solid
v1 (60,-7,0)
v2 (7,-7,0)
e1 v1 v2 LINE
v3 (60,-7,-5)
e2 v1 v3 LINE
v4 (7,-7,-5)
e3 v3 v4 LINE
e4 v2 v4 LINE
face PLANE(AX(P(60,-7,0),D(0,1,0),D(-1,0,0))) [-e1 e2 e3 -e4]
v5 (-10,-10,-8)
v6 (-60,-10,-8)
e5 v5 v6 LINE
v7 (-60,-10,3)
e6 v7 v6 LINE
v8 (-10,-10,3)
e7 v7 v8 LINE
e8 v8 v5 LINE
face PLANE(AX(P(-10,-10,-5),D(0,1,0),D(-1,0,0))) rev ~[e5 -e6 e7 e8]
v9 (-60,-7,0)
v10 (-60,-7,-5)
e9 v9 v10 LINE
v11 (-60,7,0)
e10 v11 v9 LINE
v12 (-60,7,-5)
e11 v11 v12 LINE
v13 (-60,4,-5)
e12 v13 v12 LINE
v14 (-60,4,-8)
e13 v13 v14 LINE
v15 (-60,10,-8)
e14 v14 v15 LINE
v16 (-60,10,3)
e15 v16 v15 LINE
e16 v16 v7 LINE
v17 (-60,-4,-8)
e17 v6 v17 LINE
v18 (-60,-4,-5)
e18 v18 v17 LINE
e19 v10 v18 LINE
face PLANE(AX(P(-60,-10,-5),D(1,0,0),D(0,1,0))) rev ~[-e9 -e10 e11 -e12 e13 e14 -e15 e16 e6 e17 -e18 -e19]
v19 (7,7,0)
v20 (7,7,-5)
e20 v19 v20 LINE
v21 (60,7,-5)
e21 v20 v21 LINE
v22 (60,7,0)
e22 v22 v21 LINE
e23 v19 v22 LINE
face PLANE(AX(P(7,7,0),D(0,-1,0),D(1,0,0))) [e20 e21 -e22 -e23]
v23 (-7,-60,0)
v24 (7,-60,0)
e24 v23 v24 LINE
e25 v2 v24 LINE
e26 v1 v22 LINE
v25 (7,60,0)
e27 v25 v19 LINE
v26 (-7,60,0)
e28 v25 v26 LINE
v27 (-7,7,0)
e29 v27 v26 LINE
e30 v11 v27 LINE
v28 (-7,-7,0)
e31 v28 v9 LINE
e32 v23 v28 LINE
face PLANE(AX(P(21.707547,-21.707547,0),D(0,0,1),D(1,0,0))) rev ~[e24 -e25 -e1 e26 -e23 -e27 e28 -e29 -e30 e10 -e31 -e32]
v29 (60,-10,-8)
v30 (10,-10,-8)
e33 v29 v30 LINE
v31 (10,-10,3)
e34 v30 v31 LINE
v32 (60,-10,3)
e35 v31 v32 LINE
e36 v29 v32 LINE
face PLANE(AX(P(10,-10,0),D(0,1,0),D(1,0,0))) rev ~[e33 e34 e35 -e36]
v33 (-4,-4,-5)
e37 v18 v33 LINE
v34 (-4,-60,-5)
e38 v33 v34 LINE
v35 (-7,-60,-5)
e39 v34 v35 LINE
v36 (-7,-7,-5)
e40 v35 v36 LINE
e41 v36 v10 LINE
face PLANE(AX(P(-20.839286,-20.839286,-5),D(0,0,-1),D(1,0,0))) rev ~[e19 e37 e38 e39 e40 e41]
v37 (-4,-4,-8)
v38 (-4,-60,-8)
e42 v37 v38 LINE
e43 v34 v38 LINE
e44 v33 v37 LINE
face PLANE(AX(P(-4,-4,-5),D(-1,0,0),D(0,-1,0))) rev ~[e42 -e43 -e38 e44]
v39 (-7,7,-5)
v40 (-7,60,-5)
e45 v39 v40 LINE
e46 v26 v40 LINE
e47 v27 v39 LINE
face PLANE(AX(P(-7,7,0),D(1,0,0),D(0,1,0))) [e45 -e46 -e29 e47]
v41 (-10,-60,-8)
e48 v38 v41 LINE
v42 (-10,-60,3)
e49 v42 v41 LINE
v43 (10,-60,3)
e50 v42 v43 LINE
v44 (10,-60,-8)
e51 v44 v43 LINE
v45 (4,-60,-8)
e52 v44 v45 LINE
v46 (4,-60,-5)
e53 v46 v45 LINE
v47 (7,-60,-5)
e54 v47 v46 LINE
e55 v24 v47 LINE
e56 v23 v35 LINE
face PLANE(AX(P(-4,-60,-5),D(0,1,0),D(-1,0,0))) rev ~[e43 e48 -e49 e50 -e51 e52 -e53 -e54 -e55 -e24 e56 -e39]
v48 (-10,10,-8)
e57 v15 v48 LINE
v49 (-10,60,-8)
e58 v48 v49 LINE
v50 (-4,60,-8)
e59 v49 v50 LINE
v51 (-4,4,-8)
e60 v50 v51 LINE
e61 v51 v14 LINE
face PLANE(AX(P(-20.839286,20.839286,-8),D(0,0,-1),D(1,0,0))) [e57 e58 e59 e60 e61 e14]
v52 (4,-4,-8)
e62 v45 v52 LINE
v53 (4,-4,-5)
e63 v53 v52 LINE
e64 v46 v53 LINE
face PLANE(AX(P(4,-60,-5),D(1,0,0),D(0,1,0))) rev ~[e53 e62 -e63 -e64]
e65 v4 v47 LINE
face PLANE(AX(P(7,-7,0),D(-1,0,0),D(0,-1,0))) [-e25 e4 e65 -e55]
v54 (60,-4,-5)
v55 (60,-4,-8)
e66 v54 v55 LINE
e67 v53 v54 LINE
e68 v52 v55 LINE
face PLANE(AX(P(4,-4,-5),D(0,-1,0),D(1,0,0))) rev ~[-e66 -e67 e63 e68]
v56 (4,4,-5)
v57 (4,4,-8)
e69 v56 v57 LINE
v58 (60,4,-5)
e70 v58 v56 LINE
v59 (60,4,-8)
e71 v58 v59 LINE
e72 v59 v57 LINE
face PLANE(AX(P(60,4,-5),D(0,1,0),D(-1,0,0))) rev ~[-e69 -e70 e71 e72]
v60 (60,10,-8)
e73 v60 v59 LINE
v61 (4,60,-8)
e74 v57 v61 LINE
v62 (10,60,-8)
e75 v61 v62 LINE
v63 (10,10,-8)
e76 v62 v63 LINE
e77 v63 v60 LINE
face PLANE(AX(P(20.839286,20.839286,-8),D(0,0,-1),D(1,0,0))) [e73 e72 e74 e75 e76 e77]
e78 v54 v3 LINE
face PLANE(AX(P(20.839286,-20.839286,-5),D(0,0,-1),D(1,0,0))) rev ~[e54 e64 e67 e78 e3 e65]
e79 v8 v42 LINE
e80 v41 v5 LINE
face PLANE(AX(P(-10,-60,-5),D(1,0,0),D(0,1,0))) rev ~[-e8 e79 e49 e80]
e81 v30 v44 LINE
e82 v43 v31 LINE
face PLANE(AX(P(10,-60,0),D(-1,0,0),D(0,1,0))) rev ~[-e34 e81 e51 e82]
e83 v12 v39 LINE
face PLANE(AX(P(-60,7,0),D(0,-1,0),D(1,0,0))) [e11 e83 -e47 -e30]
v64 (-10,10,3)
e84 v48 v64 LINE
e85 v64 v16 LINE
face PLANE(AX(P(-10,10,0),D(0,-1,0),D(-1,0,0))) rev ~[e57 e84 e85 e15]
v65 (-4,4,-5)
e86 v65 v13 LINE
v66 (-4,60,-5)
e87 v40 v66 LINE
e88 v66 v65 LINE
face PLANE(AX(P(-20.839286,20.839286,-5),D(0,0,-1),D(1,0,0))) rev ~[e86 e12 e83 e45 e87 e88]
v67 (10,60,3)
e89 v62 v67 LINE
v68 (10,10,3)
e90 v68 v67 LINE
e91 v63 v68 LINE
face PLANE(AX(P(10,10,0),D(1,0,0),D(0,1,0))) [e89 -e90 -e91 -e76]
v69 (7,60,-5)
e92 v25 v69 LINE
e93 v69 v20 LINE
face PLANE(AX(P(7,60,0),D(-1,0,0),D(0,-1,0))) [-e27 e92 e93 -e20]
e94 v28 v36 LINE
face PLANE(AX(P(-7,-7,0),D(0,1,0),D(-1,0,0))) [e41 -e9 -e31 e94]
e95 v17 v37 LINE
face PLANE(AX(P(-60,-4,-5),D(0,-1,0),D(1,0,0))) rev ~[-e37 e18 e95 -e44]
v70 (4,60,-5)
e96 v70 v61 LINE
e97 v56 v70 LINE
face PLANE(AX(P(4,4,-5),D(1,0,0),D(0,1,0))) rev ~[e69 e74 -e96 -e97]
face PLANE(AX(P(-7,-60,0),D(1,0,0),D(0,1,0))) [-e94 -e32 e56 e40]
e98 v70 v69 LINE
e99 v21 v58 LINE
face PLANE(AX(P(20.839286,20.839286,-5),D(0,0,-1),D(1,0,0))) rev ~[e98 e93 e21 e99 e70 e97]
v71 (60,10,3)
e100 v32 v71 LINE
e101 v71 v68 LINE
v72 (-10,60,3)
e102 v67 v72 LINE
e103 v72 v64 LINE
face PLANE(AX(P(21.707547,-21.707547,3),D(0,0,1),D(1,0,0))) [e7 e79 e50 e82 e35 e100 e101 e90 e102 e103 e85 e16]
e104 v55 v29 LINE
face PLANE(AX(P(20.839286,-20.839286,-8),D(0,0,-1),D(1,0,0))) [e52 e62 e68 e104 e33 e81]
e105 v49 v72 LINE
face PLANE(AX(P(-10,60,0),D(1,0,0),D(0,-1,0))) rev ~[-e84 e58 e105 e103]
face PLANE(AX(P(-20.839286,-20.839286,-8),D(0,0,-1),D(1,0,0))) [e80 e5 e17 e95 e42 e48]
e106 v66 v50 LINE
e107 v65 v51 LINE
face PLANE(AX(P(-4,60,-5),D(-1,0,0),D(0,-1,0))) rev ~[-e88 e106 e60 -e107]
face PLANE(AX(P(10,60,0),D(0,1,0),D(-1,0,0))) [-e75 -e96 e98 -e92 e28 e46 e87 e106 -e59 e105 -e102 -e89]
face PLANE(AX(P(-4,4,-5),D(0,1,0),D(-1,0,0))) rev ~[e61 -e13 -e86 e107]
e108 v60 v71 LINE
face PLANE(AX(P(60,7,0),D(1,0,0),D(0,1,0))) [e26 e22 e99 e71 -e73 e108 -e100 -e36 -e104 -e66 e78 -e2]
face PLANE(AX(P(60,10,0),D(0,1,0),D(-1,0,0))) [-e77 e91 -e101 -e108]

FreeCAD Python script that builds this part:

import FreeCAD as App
import Part
import Sketcher
from FreeCAD import Vector


def add_polygon(sketch, points):
    """Adds a closed chain of lines whose ends are joined by coincident constraints."""
    first, n = sketch.GeometryCount, len(points)
    for a, b in zip(points, points[1:] + points[:1]):
        sketch.addGeometry(Part.LineSegment(App.Vector(*a, 0), App.Vector(*b, 0)), False)
    for i in range(n):
        sketch.addConstraint(Sketcher.Constraint("Coincident", first + i, 2, first + (i + 1) % n, 1))

doc = App.newDocument("Part")
body = doc.addObject("PartDesign::Body", "Body")

# Sketch on XY plane
sketch1 = doc.addObject("Sketcher::SketchObject", "Sketch")
body.addObject(sketch1)
sketch1.AttachmentSupport = (doc.XY_Plane, [""])
sketch1.MapMode = "FlatFace"
add_polygon(sketch1, [(10, -60), (10, -10), (60, -10), (60, 10), (10, 10), (10, 60), (-10, 60), (-10, 10), (-60, 10), (-60, -10), (-10, -10), (-10, -60)])  # lines 0-11
sketch1.addConstraint([
    Sketcher.Constraint("Vertical", 0),
    Sketcher.Constraint("Horizontal", 1),
    Sketcher.Constraint("Vertical", 2),
    Sketcher.Constraint("Horizontal", 3),
    Sketcher.Constraint("Vertical", 4),
    Sketcher.Constraint("Horizontal", 5),
    Sketcher.Constraint("Vertical", 6),
    Sketcher.Constraint("Horizontal", 7),
    Sketcher.Constraint("Vertical", 8),
    Sketcher.Constraint("Horizontal", 9),
    Sketcher.Constraint("Vertical", 10),
    Sketcher.Constraint("Horizontal", 11),
    Sketcher.Constraint("Symmetric", 0, 2, 6, 2, -1, 1),
    Sketcher.Constraint("Symmetric", 2, 2, 8, 2, -1, 1),
    Sketcher.Constraint("Symmetric", 4, 2, 10, 2, -1, 1),
    Sketcher.Constraint("Symmetric", 3, 2, 6, 2, -2),
    Sketcher.Constraint("Equal", 9, 0),
    Sketcher.Constraint("Equal", 11, 2),
    Sketcher.Constraint("DistanceX", 1, 1, 1, 2, 50.0),
    Sketcher.Constraint("DistanceX", 5, 2, 5, 1, 20.0),
])
pad1 = doc.addObject("PartDesign::Pad", "Pad")
body.addObject(pad1)
pad1.Profile = sketch1
pad1.Length = 3

# Sketch on XY plane
sketch2 = doc.addObject("Sketcher::SketchObject", "Sketch001")
body.addObject(sketch2)
sketch2.AttachmentSupport = (doc.XY_Plane, [""])
sketch2.MapMode = "FlatFace"
add_polygon(sketch2, [(7, 7), (60, 7), (60, 10), (10, 10), (10, 60), (7, 60)])  # lines 0-5
add_polygon(sketch2, [(-60, 10), (-60, 7), (-7, 7), (-7, 60), (-10, 60), (-10, 10)])  # lines 6-11
add_polygon(sketch2, [(-10, -60), (-7, -60), (-7, -7), (-60, -7), (-60, -10), (-10, -10)])  # lines 12-17
add_polygon(sketch2, [(7, -60), (10, -60), (10, -10), (60, -10), (60, -7), (7, -7)])  # lines 18-23
sketch2.addConstraint([
    Sketcher.Constraint("Horizontal", 0),
    Sketcher.Constraint("Vertical", 1),
    Sketcher.Constraint("Horizontal", 2),
    Sketcher.Constraint("Vertical", 3),
    Sketcher.Constraint("Horizontal", 4),
    Sketcher.Constraint("Vertical", 5),
    Sketcher.Constraint("Vertical", 6),
    Sketcher.Constraint("Horizontal", 7),
    Sketcher.Constraint("Vertical", 8),
    Sketcher.Constraint("Horizontal", 9),
    Sketcher.Constraint("Vertical", 10),
    Sketcher.Constraint("Horizontal", 11),
    Sketcher.Constraint("Horizontal", 12),
    Sketcher.Constraint("Vertical", 13),
    Sketcher.Constraint("Horizontal", 14),
    Sketcher.Constraint("Vertical", 15),
    Sketcher.Constraint("Horizontal", 16),
    Sketcher.Constraint("Vertical", 17),
    Sketcher.Constraint("Horizontal", 18),
    Sketcher.Constraint("Vertical", 19),
    Sketcher.Constraint("Horizontal", 20),
    Sketcher.Constraint("Vertical", 21),
    Sketcher.Constraint("Horizontal", 22),
    Sketcher.Constraint("Vertical", 23),
    Sketcher.Constraint("Symmetric", 4, 2, 12, 2, -1, 1),
    Sketcher.Constraint("Symmetric", 0, 2, 14, 2, -1, 1),
    Sketcher.Constraint("Symmetric", 2, 2, 16, 2, -1, 1),
    Sketcher.Constraint("Symmetric", 9, 2, 18, 2, -1, 1),
    Sketcher.Constraint("Symmetric", 11, 2, 20, 2, -1, 1),
    Sketcher.Constraint("Symmetric", 7, 2, 22, 2, -1, 1),
    Sketcher.Constraint("Symmetric", 0, 2, 6, 2, -2),
    Sketcher.Constraint("Symmetric", 4, 2, 8, 2, -2),
    Sketcher.Constraint("Symmetric", 2, 2, 10, 2, -2),
    Sketcher.Constraint("Equal", 18, 1),
    Sketcher.Constraint("Equal", 20, 3),
    Sketcher.Constraint("DistanceX", 0, 1, 0, 2, 53.0),
    Sketcher.Constraint("DistanceX", 2, 2, 2, 1, 50.0),
    Sketcher.Constraint("DistanceX", -1, 1, 0, 2, 60.0),
    Sketcher.Constraint("DistanceY", -1, 1, 0, 2, 7.0),
])
pad2 = doc.addObject("PartDesign::Pad", "Pad001")
body.addObject(pad2)
pad2.Profile = sketch2
pad2.Length = 5
pad2.Reversed = True

# Sketch on XY plane
sketch3 = doc.addObject("Sketcher::SketchObject", "Sketch002")
body.addObject(sketch3)
sketch3.AttachmentSupport = (doc.XY_Plane, [""])
sketch3.MapMode = "FlatFace"
sketch3.AttachmentOffset = App.Placement(Vector(0, 0, -5), App.Rotation())
add_polygon(sketch3, [(-4, -60), (-10, -60), (-10, -10), (-60, -10), (-60, -4), (-4, -4)])  # lines 0-5
add_polygon(sketch3, [(10, -10), (10, -60), (4, -60), (4, -4), (60, -4), (60, -10)])  # lines 6-11
add_polygon(sketch3, [(60, 4), (4, 4), (4, 60), (10, 60), (10, 10), (60, 10)])  # lines 12-17
add_polygon(sketch3, [(-10, 10), (-10, 60), (-4, 60), (-4, 4), (-60, 4), (-60, 10)])  # lines 18-23
sketch3.addConstraint([
    Sketcher.Constraint("Horizontal", 0),
    Sketcher.Constraint("Vertical", 1),
    Sketcher.Constraint("Horizontal", 2),
    Sketcher.Constraint("Vertical", 3),
    Sketcher.Constraint("Horizontal", 4),
    Sketcher.Constraint("Vertical", 5),
    Sketcher.Constraint("Vertical", 6),
    Sketcher.Constraint("Horizontal", 7),
    Sketcher.Constraint("Vertical", 8),
    Sketcher.Constraint("Horizontal", 9),
    Sketcher.Constraint("Vertical", 10),
    Sketcher.Constraint("Horizontal", 11),
    Sketcher.Constraint("Horizontal", 12),
    Sketcher.Constraint("Vertical", 13),
    Sketcher.Constraint("Horizontal", 14),
    Sketcher.Constraint("Vertical", 15),
    Sketcher.Constraint("Horizontal", 16),
    Sketcher.Constraint("Vertical", 17),
    Sketcher.Constraint("Vertical", 18),
    Sketcher.Constraint("Horizontal", 19),
    Sketcher.Constraint("Vertical", 20),
    Sketcher.Constraint("Horizontal", 21),
    Sketcher.Constraint("Vertical", 22),
    Sketcher.Constraint("Horizontal", 23),
    Sketcher.Constraint("Symmetric", 4, 2, 12, 2, -1, 1),
    Sketcher.Constraint("Symmetric", 0, 2, 14, 2, -1, 1),
    Sketcher.Constraint("Symmetric", 2, 2, 16, 2, -1, 1),
    Sketcher.Constraint("Symmetric", 6, 2, 18, 2, -1, 1),
    Sketcher.Constraint("Symmetric", 8, 2, 20, 2, -1, 1),
    Sketcher.Constraint("Symmetric", 10, 2, 22, 2, -1, 1),
    Sketcher.Constraint("Symmetric", 0, 2, 6, 2, -2),
    Sketcher.Constraint("Symmetric", 4, 2, 8, 2, -2),
    Sketcher.Constraint("Symmetric", 2, 2, 10, 2, -2),
    Sketcher.Constraint("Equal", 23, 1),
    Sketcher.Constraint("Equal", 19, 3),
    Sketcher.Constraint("DistanceX", 0, 2, 0, 1, 6.0),
    Sketcher.Constraint("DistanceX", 2, 2, 2, 1, 50.0),
    Sketcher.Constraint("DistanceX", 0, 2, -1, 1, 10.0),
    Sketcher.Constraint("DistanceY", 0, 2, -1, 1, 60.0),
])
pad3 = doc.addObject("PartDesign::Pad", "Pad002")
body.addObject(pad3)
pad3.Profile = sketch3
pad3.Length = 3
pad3.Reversed = True

doc.recompute()
